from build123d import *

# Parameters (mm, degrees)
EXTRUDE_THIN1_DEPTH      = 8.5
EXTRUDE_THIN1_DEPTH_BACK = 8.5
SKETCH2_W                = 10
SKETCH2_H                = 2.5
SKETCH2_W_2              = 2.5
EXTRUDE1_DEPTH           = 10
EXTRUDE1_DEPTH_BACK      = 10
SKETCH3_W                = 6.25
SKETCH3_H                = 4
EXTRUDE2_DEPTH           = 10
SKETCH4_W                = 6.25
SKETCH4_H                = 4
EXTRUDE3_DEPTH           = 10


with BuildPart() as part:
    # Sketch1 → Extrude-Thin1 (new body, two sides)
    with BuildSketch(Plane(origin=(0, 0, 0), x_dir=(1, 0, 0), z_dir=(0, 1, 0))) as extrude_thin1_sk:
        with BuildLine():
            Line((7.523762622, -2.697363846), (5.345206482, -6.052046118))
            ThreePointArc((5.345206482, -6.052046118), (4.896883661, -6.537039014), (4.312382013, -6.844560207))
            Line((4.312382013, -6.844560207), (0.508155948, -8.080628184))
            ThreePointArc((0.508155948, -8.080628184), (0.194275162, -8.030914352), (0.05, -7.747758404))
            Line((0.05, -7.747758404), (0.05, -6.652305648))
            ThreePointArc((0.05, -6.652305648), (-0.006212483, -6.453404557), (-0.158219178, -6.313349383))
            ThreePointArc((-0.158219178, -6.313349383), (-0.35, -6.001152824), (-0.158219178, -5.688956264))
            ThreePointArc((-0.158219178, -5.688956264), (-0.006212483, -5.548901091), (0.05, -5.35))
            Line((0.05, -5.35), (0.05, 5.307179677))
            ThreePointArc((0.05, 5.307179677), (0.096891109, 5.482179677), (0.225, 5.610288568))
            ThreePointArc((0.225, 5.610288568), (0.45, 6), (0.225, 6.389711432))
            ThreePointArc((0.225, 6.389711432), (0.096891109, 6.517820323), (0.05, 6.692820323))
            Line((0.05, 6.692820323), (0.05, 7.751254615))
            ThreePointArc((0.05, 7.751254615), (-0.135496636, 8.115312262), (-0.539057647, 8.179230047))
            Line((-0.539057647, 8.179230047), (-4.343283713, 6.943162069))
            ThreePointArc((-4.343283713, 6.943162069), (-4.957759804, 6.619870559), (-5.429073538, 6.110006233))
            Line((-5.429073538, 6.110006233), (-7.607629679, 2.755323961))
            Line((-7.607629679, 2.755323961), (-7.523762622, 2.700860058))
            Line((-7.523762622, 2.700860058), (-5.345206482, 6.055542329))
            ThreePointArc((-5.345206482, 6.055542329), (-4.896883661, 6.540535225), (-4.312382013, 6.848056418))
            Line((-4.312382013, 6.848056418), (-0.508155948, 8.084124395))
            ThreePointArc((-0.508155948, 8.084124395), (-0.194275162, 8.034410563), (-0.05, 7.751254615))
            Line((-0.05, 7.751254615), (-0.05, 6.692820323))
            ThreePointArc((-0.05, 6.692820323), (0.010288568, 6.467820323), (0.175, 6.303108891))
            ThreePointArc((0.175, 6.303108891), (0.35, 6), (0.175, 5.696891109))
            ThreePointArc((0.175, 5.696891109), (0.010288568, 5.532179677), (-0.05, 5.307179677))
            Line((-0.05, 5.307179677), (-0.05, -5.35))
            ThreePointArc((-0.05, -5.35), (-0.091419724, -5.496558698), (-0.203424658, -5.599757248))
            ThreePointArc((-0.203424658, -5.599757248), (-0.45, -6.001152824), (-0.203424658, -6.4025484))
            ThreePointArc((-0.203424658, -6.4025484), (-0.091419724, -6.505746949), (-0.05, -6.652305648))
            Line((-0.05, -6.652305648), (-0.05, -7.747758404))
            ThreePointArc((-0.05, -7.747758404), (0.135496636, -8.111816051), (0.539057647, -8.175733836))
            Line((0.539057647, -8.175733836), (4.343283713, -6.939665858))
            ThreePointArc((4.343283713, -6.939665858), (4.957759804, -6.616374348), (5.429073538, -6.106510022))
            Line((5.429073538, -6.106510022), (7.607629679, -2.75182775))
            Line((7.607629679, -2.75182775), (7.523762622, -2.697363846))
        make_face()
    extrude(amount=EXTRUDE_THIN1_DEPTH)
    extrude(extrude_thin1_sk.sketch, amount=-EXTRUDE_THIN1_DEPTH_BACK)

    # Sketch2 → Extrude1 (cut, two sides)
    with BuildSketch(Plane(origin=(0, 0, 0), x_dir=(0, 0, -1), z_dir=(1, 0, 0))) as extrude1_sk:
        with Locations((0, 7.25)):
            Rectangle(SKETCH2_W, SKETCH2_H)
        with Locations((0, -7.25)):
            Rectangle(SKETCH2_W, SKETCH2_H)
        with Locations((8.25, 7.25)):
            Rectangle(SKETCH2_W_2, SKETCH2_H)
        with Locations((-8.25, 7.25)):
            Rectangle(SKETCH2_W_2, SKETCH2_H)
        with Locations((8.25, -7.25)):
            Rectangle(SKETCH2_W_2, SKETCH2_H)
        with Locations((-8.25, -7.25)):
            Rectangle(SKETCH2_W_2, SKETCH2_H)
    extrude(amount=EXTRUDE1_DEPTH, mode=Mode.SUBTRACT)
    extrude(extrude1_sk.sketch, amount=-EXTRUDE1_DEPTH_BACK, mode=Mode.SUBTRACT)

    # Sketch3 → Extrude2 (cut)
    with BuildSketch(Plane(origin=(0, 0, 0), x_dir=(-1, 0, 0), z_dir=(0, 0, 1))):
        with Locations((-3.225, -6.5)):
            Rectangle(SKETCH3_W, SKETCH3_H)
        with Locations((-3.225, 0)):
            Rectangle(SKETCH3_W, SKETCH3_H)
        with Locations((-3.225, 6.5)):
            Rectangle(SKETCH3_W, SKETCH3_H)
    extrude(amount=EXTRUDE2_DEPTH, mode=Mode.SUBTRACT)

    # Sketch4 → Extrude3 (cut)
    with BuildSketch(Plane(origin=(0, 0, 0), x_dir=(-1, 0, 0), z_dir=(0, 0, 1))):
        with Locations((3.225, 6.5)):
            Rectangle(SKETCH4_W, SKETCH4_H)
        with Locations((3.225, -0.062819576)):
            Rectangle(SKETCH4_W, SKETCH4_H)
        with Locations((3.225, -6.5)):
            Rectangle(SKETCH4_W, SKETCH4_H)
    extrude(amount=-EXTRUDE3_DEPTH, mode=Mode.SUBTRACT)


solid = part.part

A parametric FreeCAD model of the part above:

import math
import FreeCAD as App
import Part
import Sketcher
Q = App.Units.Quantity


def add_polygon(sketch, points):
    """Adds a closed chain of lines whose ends are joined by coincident constraints."""
    first, n = sketch.GeometryCount, len(points)
    for a, b in zip(points, points[1:] + points[:1]):
        sketch.addGeometry(Part.LineSegment(App.Vector(*a, 0), App.Vector(*b, 0)), False)
    for i in range(n):
        sketch.addConstraint(Sketcher.Constraint("Coincident", first + i, 2, first + (i + 1) % n, 1))

doc = App.newDocument("Part")
params = doc.addObject("Spreadsheet::Sheet", "Params")
for row, (alias, value) in enumerate([
    ("sketch1_radius", "1.95 mm"),
    ("sketch1_radius2", "0.35 mm"),
    ("sketch1_radius3", "0.38 mm"),
    ("sketch1_radius4", "0.45 mm"),
    ("sketch1_length", "4 mm"),
    ("pad1_length", "8.5 mm"),
    ("pad1_length2", "8.5 mm"),
    ("sketch2_height", "10 mm"),
    ("sketch2_width", "2.5 mm"),
    ("sketch3_height", "4 mm"),
    ("sketch3_width", "6.25 mm"),
    ("pocket2_length", "10 mm"),
    ("sketch4_height", "4 mm"),
    ("sketch4_width", "6.25 mm"),
    ("pocket3_length", "10 mm"),
], start=1):
    params.set(f"A{row}", alias)
    params.set(f"B{row}", "=" + value)
    params.setAlias(f"B{row}", alias)

body = doc.addObject("PartDesign::Body", "Body")

sketch1 = body.newObject("Sketcher::SketchObject", "Sketch")
sketch1.AttachmentSupport = (doc.getObject("XZ_Plane"), [""])
sketch1.MapMode = "FlatFace"
sketch1.addGeometry([
    Part.LineSegment(App.Vector(7.52, 2.7, 0), App.Vector(5.35, 6.05, 0)),
    Part.ArcOfCircle(Part.Circle(App.Vector(3.71, 4.99, 0), App.Vector(0, 0, 1), 1.95), math.radians(33), math.radians(72)),
    Part.LineSegment(App.Vector(4.31, 6.84, 0), App.Vector(0.51, 8.08, 0)),
    Part.ArcOfCircle(Part.Circle(App.Vector(0.4, 7.75, 0), App.Vector(0, 0, 1), 0.35), math.radians(72), math.radians(180)),
    Part.LineSegment(App.Vector(0.05, 7.75, 0), App.Vector(0.05, 6.65, 0)),
    Part.ArcOfCircle(Part.Circle(App.Vector(-0.33, 6.65, 0), App.Vector(0, 0, 1), 0.38), math.radians(-63), math.radians(0)),
    Part.ArcOfCircle(Part.Circle(App.Vector(0, 6, 0), App.Vector(0, 0, 1), 0.35), math.radians(117), math.radians(243)),
    Part.ArcOfCircle(Part.Circle(App.Vector(-0.33, 5.35, 0), App.Vector(0, 0, 1), 0.38), math.radians(0), math.radians(63)),
    Part.LineSegment(App.Vector(0.05, 5.35, 0), App.Vector(0.05, -5.31, 0)),
    Part.ArcOfCircle(Part.Circle(App.Vector(0.4, -5.31, 0), App.Vector(0, 0, 1), 0.35), math.radians(-180), math.radians(-120)),
    Part.ArcOfCircle(Part.Circle(App.Vector(0, -6, 0), App.Vector(0, 0, 1), 0.45), math.radians(-60), math.radians(60)),
    Part.ArcOfCircle(Part.Circle(App.Vector(0.4, -6.69, 0), App.Vector(0, 0, 1), 0.35), math.radians(120), math.radians(180)),
    Part.LineSegment(App.Vector(0.05, -6.69, 0), App.Vector(0.05, -7.75, 0)),
    Part.ArcOfCircle(Part.Circle(App.Vector(-0.4, -7.75, 0), App.Vector(0, 0, 1), 0.45), math.radians(-108), math.radians(0)),
    Part.LineSegment(App.Vector(-0.54, -8.18, 0), App.Vector(-4.34, -6.94, 0)),
    Part.ArcOfCircle(Part.Circle(App.Vector(-3.71, -4.99, 0), App.Vector(0, 0, 1), 2.05), math.radians(-147), math.radians(-108)),
    Part.LineSegment(App.Vector(-5.43, -6.11, 0), App.Vector(-7.61, -2.76, 0)),
    Part.LineSegment(App.Vector(-7.61, -2.76, 0), App.Vector(-7.52, -2.7, 0)),
    Part.LineSegment(App.Vector(-7.52, -2.7, 0), App.Vector(-5.35, -6.06, 0)),
    Part.ArcOfCircle(Part.Circle(App.Vector(-3.71, -4.99, 0), App.Vector(0, 0, 1), 1.95), math.radians(-147), math.radians(-108)),
    Part.LineSegment(App.Vector(-4.31, -6.85, 0), App.Vector(-0.51, -8.08, 0)),
    Part.ArcOfCircle(Part.Circle(App.Vector(-0.4, -7.75, 0), App.Vector(0, 0, 1), 0.35), math.radians(-108), math.radians(0)),
    Part.LineSegment(App.Vector(-0.05, -7.75, 0), App.Vector(-0.05, -6.69, 0)),
    Part.ArcOfCircle(Part.Circle(App.Vector(0.4, -6.69, 0), App.Vector(0, 0, 1), 0.45), math.radians(120), math.radians(180)),
    Part.ArcOfCircle(Part.Circle(App.Vector(0, -6, 0), App.Vector(0, 0, 1), 0.35), math.radians(-60), math.radians(60)),
    Part.ArcOfCircle(Part.Circle(App.Vector(0.4, -5.31, 0), App.Vector(0, 0, 1), 0.45), math.radians(180), math.radians(240)),
    Part.LineSegment(App.Vector(-0.05, -5.31, 0), App.Vector(-0.05, 5.35, 0)),
    Part.ArcOfCircle(Part.Circle(App.Vector(-0.33, 5.35, 0), App.Vector(0, 0, 1), 0.28), math.radians(0), math.radians(63)),
    Part.ArcOfCircle(Part.Circle(App.Vector(0, 6, 0), App.Vector(0, 0, 1), 0.45), math.radians(117), math.radians(243)),
    Part.ArcOfCircle(Part.Circle(App.Vector(-0.33, 6.65, 0), App.Vector(0, 0, 1), 0.28), math.radians(-63), math.radians(0)),
    Part.LineSegment(App.Vector(-0.05, 6.65, 0), App.Vector(-0.05, 7.75, 0)),
    Part.ArcOfCircle(Part.Circle(App.Vector(0.4, 7.75, 0), App.Vector(0, 0, 1), 0.45), math.radians(72), math.radians(180)),
    Part.LineSegment(App.Vector(0.54, 8.18, 0), App.Vector(4.34, 6.94, 0)),
    Part.ArcOfCircle(Part.Circle(App.Vector(3.71, 4.99, 0), App.Vector(0, 0, 1), 2.05), math.radians(33), math.radians(72)),
    Part.LineSegment(App.Vector(5.43, 6.11, 0), App.Vector(7.61, 2.75, 0)),
    Part.LineSegment(App.Vector(7.61, 2.75, 0), App.Vector(7.52, 2.7, 0)),
], False)
sketch1.addConstraint([
    Sketcher.Constraint("Tangent", 0, 2, 1, 1),
    Sketcher.Constraint("Tangent", 1, 2, 2, 1),
    Sketcher.Constraint("Tangent", 2, 2, 3, 1),
    Sketcher.Constraint("Tangent", 3, 2, 4, 1),
    Sketcher.Constraint("Tangent", 4, 2, 5, 2),
    Sketcher.Constraint("Tangent", 5, 1, 6, 1),
    Sketcher.Constraint("Tangent", 6, 2, 7, 2),
    Sketcher.Constraint("Tangent", 7, 1, 8, 1),
    Sketcher.Constraint("Tangent", 8, 2, 9, 1),
    Sketcher.Constraint("Tangent", 9, 2, 10, 2),
    Sketcher.Constraint("Tangent", 10, 1, 11, 1),
    Sketcher.Constraint("Tangent", 11, 2, 12, 1),
    Sketcher.Constraint("Tangent", 12, 2, 13, 2),
    Sketcher.Constraint("Tangent", 13, 1, 14, 1),
    Sketcher.Constraint("Tangent", 14, 2, 15, 2),
    Sketcher.Constraint("Tangent", 15, 1, 16, 1),
    Sketcher.Constraint("Coincident", 16, 2, 17, 1),
    Sketcher.Constraint("Coincident", 17, 2, 18, 1),
    Sketcher.Constraint("Tangent", 18, 2, 19, 1),
    Sketcher.Constraint("Tangent", 19, 2, 20, 1),
    Sketcher.Constraint("Tangent", 20, 2, 21, 1),
    Sketcher.Constraint("Tangent", 21, 2, 22, 1),
    Sketcher.Constraint("Tangent", 22, 2, 23, 2),
    Sketcher.Constraint("Tangent", 23, 1, 24, 1),
    Sketcher.Constraint("Tangent", 24, 2, 25, 2),
    Sketcher.Constraint("Tangent", 25, 1, 26, 1),
    Sketcher.Constraint("Tangent", 26, 2, 27, 1),
    Sketcher.Constraint("Tangent", 27, 2, 28, 2),
    Sketcher.Constraint("Tangent", 28, 1, 29, 1),
    Sketcher.Constraint("Tangent", 29, 2, 30, 1),
    Sketcher.Constraint("Tangent", 30, 2, 31, 2),
    Sketcher.Constraint("Tangent", 31, 1, 32, 1),
    Sketcher.Constraint("Tangent", 32, 2, 33, 2),
    Sketcher.Constraint("Tangent", 33, 1, 34, 1),
    Sketcher.Constraint("Coincident", 34, 2, 35, 1),
    Sketcher.Constraint("Coincident", 35, 2, 0, 1),
    Sketcher.Constraint("Vertical", 4),
    Sketcher.Constraint("Vertical", 8),
    Sketcher.Constraint("Vertical", 12),
    Sketcher.Constraint("Vertical", 22),
    Sketcher.Constraint("Vertical", 26),
    Sketcher.Constraint("Vertical", 30),
    Sketcher.Constraint("Coincident", 19, 3, 15, 3),
    Sketcher.Constraint("Coincident", 21, 3, 13, 3),
    Sketcher.Constraint("Coincident", 23, 3, 11, 3),
    Sketcher.Constraint("Coincident", 24, 3, 10, 3),
    Sketcher.Constraint("Coincident", 25, 3, 9, 3),
    Sketcher.Constraint("Coincident", 27, 3, 7, 3),
    Sketcher.Constraint("Coincident", 28, 3, 6, 3),
    Sketcher.Constraint("Coincident", 29, 3, 5, 3),
    Sketcher.Constraint("Coincident", 31, 3, 3, 3),
    Sketcher.Constraint("Coincident", 33, 3, 1, 3),
    Sketcher.Constraint("Equal", 3, 6),
    Sketcher.Constraint("Equal", 5, 7),
    Sketcher.Constraint("Equal", 6, 9),
    Sketcher.Constraint("Equal", 9, 11),
    Sketcher.Constraint("Equal", 10, 13),
    Sketcher.Constraint("Equal", 1, 19),
    Sketcher.Constraint("Equal", 11, 21),
    Sketcher.Constraint("Equal", 15, 33),
    Sketcher.Constraint("PointOnObject", 6, 3, -2),
    Sketcher.Constraint("PointOnObject", 10, 3, -2),
    Sketcher.Constraint("Parallel", 2, 14),
    Sketcher.Constraint("Parallel", 0, 16),
    Sketcher.Constraint("Perpendicular", 16, 17),
    Sketcher.Constraint("Perpendicular", 17, 18),
    Sketcher.Constraint("Parallel", 14, 20),
    Sketcher.Constraint("Parallel", 18, 34),
    Sketcher.Constraint("Perpendicular", 34, 35),
    Sketcher.Constraint("Vertical", 5, 3, 7, 3),
    Sketcher.Constraint("Vertical", 9, 3, 11, 3),
    Sketcher.Constraint("Equal", 0, 2),
    Sketcher.Constraint("Equal", 2, 14),
    Sketcher.Constraint("Equal", 14, 16),
    Sketcher.Constraint("Angle", 0, Q("123 deg")),
    Sketcher.Constraint("Angle", 2, Q("162 deg")),
    Sketcher.Constraint("Radius", 1, 1.95),
    Sketcher.Constraint("Radius", 3, 0.35),
    Sketcher.Constraint("Radius", 5, 0.38),
    Sketcher.Constraint("Radius", 10, 0.45),
    Sketcher.Constraint("Distance", 0, 4.0),
    Sketcher.Constraint("DistanceY", 10, 3, -1, 1, 6.0),
    Sketcher.Constraint("DistanceX", -1, 1, 3, 3, 0.4),
    Sketcher.Constraint("DistanceY", -1, 1, 1, 3, 4.99),
    Sketcher.Constraint("DistanceY", -1, 1, 7, 3, 5.35),
    Sketcher.Constraint("DistanceY", 12, 2, 12, 1, 1.058434),
])
sketch1.setExpression("Constraints[76]", "Params.sketch1_radius")
sketch1.setExpression("Constraints[77]", "Params.sketch1_radius2")
sketch1.setExpression("Constraints[78]", "Params.sketch1_radius3")
sketch1.setExpression("Constraints[79]", "Params.sketch1_radius4")
sketch1.setExpression("Constraints[80]", "Params.sketch1_length")
pad1 = body.newObject("PartDesign::Pad", "Pad")
pad1.Profile = sketch1
pad1.Type = "TwoLengths"
pad1.setExpression("Length", "Params.pad1_length")
pad1.setExpression("Length2", "Params.pad1_length2")
pad1.Reversed = True

sketch2 = body.newObject("Sketcher::SketchObject", "Sketch001")
sketch2.AttachmentSupport = (doc.getObject("YZ_Plane"), [""])
sketch2.MapMode = "FlatFace"
add_polygon(sketch2, [(8.5, 5), (6, 5), (6, -5), (8.5, -5)])
add_polygon(sketch2, [(-6, 5), (-8.5, 5), (-8.5, -5), (-6, -5)])
add_polygon(sketch2, [(8.5, -7), (6, -7), (6, -9.5), (8.5, -9.5)])
add_polygon(sketch2, [(8.5, 9.5), (6, 9.5), (6, 7), (8.5, 7)])
add_polygon(sketch2, [(-6, -7), (-8.5, -7), (-8.5, -9.5), (-6, -9.5)])
add_polygon(sketch2, [(-6, 9.5), (-8.5, 9.5), (-8.5, 7), (-6, 7)])
sketch2.addConstraint([
    Sketcher.Constraint("Horizontal", 0),
    Sketcher.Constraint("Vertical", 1),
    Sketcher.Constraint("Horizontal", 2),
    Sketcher.Constraint("Vertical", 3),
    Sketcher.Constraint("Horizontal", 4),
    Sketcher.Constraint("Vertical", 5),
    Sketcher.Constraint("Horizontal", 6),
    Sketcher.Constraint("Vertical", 7),
    Sketcher.Constraint("Horizontal", 8),
    Sketcher.Constraint("Vertical", 9),
    Sketcher.Constraint("Horizontal", 10),
    Sketcher.Constraint("Vertical", 11),
    Sketcher.Constraint("Horizontal", 12),
    Sketcher.Constraint("Vertical", 13),
    Sketcher.Constraint("Horizontal", 14),
    Sketcher.Constraint("Vertical", 15),
    Sketcher.Constraint("Horizontal", 16),
    Sketcher.Constraint("Vertical", 17),
    Sketcher.Constraint("Horizontal", 18),
    Sketcher.Constraint("Vertical", 19),
    Sketcher.Constraint("Horizontal", 20),
    Sketcher.Constraint("Vertical", 21),
    Sketcher.Constraint("Horizontal", 22),
    Sketcher.Constraint("Vertical", 23),
    Sketcher.Constraint("Symmetric", 2, 2, 4, 2, -1, 1),
    Sketcher.Constraint("Symmetric", 0, 2, 6, 2, -1, 1),
    Sketcher.Constraint("Symmetric", 14, 2, 16, 2, -1, 1),
    Sketcher.Constraint("Symmetric", 12, 2, 18, 2, -1, 1),
    Sketcher.Constraint("Symmetric", 10, 2, 20, 2, -1, 1),
    Sketcher.Constraint("Symmetric", 8, 2, 22, 2, -1, 1),
    Sketcher.Constraint("Symmetric", 11, 2, 16, 2, -2),
    Sketcher.Constraint("Symmetric", 9, 2, 18, 2, -2),
    Sketcher.Constraint("Horizontal", 3, 2, 4, 2),
    Sketcher.Constraint("Vertical", 1, 2, 8, 2),
    Sketcher.Constraint("Vertical", 3, 2, 10, 2),
    Sketcher.Constraint("Equal", 22, 9),
    Sketcher.Constraint("DistanceY", 1, 2, 1, 1, 10.0),
    Sketcher.Constraint("DistanceX", 0, 2, 0, 1, 2.5),
    Sketcher.Constraint("DistanceX", -1, 1, 0, 2, 6.0),
    Sketcher.Constraint("DistanceY", 8, 2, -1, 1, 7.0),
])
sketch2.setExpression("Constraints[60]", "Params.sketch2_height")
sketch2.setExpression("Constraints[61]", "Params.sketch2_width")
pocket1 = body.newObject("PartDesign::Pocket", "Pocket")
pocket1.Profile = sketch2
pocket1.Type = "ThroughAll"
pocket1.Midplane = True

sketch3 = body.newObject("Sketcher::SketchObject", "Sketch002")
sketch3.AttachmentSupport = (doc.getObject("XY_Plane"), [""])
sketch3.MapMode = "FlatFace"
add_polygon(sketch3, [(6.3, 4.5), (6.3, 8.5), (0.1, 8.5), (0.1, 4.5)])
add_polygon(sketch3, [(6.3, -2), (6.3, 2), (0.1, 2), (0.1, -2)])
add_polygon(sketch3, [(6.3, -8.5), (6.3, -4.5), (0.1, -4.5), (0.1, -8.5)])
sketch3.addConstraint([
    Sketcher.Constraint("Vertical", 0),
    Sketcher.Constraint("Horizontal", 1),
    Sketcher.Constraint("Vertical", 2),
    Sketcher.Constraint("Horizontal", 3),
    Sketcher.Constraint("Vertical", 4),
    Sketcher.Constraint("Horizontal", 5),
    Sketcher.Constraint("Vertical", 6),
    Sketcher.Constraint("Horizontal", 7),
    Sketcher.Constraint("Vertical", 8),
    Sketcher.Constraint("Horizontal", 9),
    Sketcher.Constraint("Vertical", 10),
    Sketcher.Constraint("Horizontal", 11),
    Sketcher.Constraint("Symmetric", 3, 2, 8, 2, -1),
    Sketcher.Constraint("Symmetric", 1, 2, 10, 2, -1),
    Sketcher.Constraint("Vertical", 3, 2, 4, 2),
    Sketcher.Constraint("Vertical", 2, 2, 5, 2),
    Sketcher.Constraint("Equal", 2, 4),
    Sketcher.Constraint("DistanceY", 0, 1, 0, 2, 4.0),
    Sketcher.Constraint("DistanceY", -1, 1, 4, 2, 2.0),
    Sketcher.Constraint("DistanceY", 8, 2, 3, 2, 9.0),
    Sketcher.Constraint("DistanceX", 1, 2, 1, 1, 6.25),
    Sketcher.Constraint("DistanceX", -1, 1, 1, 2, 0.1),
])
sketch3.setExpression("Constraints[29]", "Params.sketch3_height")
sketch3.setExpression("Constraints[32]", "Params.sketch3_width")
pocket2 = body.newObject("PartDesign::Pocket", "Pocket001")
pocket2.Profile = sketch3
pocket2.setExpression("Length", "Params.pocket2_length")
pocket2.Reversed = True

sketch4 = body.newObject("Sketcher::SketchObject", "Sketch003")
sketch4.AttachmentSupport = (doc.getObject("XY_Plane"), [""])
sketch4.MapMode = "FlatFace"
add_polygon(sketch4, [(-0.1, -8.5), (-0.1, -4.5), (-6.3, -4.5), (-6.3, -8.5)])
add_polygon(sketch4, [(-0.1, -1.9), (-0.1, 2.1), (-6.3, 2.1), (-6.3, -1.9)])
add_polygon(sketch4, [(-0.1, 4.5), (-0.1, 8.5), (-6.3, 8.5), (-6.3, 4.5)])
sketch4.addConstraint([
    Sketcher.Constraint("Vertical", 0),
    Sketcher.Constraint("Horizontal", 1),
    Sketcher.Constraint("Vertical", 2),
    Sketcher.Constraint("Horizontal", 3),
    Sketcher.Constraint("Vertical", 4),
    Sketcher.Constraint("Horizontal", 5),
    Sketcher.Constraint("Vertical", 6),
    Sketcher.Constraint("Horizontal", 7),
    Sketcher.Constraint("Vertical", 8),
    Sketcher.Constraint("Horizontal", 9),
    Sketcher.Constraint("Vertical", 10),
    Sketcher.Constraint("Horizontal", 11),
    Sketcher.Constraint("Symmetric", 3, 2, 8, 2, -1),
    Sketcher.Constraint("Symmetric", 1, 2, 10, 2, -1),
    Sketcher.Constraint("Vertical", 3, 2, 4, 2),
    Sketcher.Constraint("Vertical", 2, 2, 5, 2),
    Sketcher.Constraint("Equal", 2, 4),
    Sketcher.Constraint("DistanceY", 0, 1, 0, 2, 4.0),
    Sketcher.Constraint("DistanceY", 0, 2, 8, 2, 13.0),
    Sketcher.Constraint("DistanceX", 1, 2, 1, 1, 6.25),
    Sketcher.Constraint("DistanceX", 0, 2, -1, 1, 0.1),
    Sketcher.Constraint("DistanceY", -1, 1, 4, 2, 2.06282),
])
sketch4.setExpression("Constraints[29]", "Params.sketch4_height")
sketch4.setExpression("Constraints[31]", "Params.sketch4_width")
pocket3 = body.newObject("PartDesign::Pocket", "Pocket002")
pocket3.Profile = sketch4
pocket3.setExpression("Length", "Params.pocket3_length")

doc.recompute()
